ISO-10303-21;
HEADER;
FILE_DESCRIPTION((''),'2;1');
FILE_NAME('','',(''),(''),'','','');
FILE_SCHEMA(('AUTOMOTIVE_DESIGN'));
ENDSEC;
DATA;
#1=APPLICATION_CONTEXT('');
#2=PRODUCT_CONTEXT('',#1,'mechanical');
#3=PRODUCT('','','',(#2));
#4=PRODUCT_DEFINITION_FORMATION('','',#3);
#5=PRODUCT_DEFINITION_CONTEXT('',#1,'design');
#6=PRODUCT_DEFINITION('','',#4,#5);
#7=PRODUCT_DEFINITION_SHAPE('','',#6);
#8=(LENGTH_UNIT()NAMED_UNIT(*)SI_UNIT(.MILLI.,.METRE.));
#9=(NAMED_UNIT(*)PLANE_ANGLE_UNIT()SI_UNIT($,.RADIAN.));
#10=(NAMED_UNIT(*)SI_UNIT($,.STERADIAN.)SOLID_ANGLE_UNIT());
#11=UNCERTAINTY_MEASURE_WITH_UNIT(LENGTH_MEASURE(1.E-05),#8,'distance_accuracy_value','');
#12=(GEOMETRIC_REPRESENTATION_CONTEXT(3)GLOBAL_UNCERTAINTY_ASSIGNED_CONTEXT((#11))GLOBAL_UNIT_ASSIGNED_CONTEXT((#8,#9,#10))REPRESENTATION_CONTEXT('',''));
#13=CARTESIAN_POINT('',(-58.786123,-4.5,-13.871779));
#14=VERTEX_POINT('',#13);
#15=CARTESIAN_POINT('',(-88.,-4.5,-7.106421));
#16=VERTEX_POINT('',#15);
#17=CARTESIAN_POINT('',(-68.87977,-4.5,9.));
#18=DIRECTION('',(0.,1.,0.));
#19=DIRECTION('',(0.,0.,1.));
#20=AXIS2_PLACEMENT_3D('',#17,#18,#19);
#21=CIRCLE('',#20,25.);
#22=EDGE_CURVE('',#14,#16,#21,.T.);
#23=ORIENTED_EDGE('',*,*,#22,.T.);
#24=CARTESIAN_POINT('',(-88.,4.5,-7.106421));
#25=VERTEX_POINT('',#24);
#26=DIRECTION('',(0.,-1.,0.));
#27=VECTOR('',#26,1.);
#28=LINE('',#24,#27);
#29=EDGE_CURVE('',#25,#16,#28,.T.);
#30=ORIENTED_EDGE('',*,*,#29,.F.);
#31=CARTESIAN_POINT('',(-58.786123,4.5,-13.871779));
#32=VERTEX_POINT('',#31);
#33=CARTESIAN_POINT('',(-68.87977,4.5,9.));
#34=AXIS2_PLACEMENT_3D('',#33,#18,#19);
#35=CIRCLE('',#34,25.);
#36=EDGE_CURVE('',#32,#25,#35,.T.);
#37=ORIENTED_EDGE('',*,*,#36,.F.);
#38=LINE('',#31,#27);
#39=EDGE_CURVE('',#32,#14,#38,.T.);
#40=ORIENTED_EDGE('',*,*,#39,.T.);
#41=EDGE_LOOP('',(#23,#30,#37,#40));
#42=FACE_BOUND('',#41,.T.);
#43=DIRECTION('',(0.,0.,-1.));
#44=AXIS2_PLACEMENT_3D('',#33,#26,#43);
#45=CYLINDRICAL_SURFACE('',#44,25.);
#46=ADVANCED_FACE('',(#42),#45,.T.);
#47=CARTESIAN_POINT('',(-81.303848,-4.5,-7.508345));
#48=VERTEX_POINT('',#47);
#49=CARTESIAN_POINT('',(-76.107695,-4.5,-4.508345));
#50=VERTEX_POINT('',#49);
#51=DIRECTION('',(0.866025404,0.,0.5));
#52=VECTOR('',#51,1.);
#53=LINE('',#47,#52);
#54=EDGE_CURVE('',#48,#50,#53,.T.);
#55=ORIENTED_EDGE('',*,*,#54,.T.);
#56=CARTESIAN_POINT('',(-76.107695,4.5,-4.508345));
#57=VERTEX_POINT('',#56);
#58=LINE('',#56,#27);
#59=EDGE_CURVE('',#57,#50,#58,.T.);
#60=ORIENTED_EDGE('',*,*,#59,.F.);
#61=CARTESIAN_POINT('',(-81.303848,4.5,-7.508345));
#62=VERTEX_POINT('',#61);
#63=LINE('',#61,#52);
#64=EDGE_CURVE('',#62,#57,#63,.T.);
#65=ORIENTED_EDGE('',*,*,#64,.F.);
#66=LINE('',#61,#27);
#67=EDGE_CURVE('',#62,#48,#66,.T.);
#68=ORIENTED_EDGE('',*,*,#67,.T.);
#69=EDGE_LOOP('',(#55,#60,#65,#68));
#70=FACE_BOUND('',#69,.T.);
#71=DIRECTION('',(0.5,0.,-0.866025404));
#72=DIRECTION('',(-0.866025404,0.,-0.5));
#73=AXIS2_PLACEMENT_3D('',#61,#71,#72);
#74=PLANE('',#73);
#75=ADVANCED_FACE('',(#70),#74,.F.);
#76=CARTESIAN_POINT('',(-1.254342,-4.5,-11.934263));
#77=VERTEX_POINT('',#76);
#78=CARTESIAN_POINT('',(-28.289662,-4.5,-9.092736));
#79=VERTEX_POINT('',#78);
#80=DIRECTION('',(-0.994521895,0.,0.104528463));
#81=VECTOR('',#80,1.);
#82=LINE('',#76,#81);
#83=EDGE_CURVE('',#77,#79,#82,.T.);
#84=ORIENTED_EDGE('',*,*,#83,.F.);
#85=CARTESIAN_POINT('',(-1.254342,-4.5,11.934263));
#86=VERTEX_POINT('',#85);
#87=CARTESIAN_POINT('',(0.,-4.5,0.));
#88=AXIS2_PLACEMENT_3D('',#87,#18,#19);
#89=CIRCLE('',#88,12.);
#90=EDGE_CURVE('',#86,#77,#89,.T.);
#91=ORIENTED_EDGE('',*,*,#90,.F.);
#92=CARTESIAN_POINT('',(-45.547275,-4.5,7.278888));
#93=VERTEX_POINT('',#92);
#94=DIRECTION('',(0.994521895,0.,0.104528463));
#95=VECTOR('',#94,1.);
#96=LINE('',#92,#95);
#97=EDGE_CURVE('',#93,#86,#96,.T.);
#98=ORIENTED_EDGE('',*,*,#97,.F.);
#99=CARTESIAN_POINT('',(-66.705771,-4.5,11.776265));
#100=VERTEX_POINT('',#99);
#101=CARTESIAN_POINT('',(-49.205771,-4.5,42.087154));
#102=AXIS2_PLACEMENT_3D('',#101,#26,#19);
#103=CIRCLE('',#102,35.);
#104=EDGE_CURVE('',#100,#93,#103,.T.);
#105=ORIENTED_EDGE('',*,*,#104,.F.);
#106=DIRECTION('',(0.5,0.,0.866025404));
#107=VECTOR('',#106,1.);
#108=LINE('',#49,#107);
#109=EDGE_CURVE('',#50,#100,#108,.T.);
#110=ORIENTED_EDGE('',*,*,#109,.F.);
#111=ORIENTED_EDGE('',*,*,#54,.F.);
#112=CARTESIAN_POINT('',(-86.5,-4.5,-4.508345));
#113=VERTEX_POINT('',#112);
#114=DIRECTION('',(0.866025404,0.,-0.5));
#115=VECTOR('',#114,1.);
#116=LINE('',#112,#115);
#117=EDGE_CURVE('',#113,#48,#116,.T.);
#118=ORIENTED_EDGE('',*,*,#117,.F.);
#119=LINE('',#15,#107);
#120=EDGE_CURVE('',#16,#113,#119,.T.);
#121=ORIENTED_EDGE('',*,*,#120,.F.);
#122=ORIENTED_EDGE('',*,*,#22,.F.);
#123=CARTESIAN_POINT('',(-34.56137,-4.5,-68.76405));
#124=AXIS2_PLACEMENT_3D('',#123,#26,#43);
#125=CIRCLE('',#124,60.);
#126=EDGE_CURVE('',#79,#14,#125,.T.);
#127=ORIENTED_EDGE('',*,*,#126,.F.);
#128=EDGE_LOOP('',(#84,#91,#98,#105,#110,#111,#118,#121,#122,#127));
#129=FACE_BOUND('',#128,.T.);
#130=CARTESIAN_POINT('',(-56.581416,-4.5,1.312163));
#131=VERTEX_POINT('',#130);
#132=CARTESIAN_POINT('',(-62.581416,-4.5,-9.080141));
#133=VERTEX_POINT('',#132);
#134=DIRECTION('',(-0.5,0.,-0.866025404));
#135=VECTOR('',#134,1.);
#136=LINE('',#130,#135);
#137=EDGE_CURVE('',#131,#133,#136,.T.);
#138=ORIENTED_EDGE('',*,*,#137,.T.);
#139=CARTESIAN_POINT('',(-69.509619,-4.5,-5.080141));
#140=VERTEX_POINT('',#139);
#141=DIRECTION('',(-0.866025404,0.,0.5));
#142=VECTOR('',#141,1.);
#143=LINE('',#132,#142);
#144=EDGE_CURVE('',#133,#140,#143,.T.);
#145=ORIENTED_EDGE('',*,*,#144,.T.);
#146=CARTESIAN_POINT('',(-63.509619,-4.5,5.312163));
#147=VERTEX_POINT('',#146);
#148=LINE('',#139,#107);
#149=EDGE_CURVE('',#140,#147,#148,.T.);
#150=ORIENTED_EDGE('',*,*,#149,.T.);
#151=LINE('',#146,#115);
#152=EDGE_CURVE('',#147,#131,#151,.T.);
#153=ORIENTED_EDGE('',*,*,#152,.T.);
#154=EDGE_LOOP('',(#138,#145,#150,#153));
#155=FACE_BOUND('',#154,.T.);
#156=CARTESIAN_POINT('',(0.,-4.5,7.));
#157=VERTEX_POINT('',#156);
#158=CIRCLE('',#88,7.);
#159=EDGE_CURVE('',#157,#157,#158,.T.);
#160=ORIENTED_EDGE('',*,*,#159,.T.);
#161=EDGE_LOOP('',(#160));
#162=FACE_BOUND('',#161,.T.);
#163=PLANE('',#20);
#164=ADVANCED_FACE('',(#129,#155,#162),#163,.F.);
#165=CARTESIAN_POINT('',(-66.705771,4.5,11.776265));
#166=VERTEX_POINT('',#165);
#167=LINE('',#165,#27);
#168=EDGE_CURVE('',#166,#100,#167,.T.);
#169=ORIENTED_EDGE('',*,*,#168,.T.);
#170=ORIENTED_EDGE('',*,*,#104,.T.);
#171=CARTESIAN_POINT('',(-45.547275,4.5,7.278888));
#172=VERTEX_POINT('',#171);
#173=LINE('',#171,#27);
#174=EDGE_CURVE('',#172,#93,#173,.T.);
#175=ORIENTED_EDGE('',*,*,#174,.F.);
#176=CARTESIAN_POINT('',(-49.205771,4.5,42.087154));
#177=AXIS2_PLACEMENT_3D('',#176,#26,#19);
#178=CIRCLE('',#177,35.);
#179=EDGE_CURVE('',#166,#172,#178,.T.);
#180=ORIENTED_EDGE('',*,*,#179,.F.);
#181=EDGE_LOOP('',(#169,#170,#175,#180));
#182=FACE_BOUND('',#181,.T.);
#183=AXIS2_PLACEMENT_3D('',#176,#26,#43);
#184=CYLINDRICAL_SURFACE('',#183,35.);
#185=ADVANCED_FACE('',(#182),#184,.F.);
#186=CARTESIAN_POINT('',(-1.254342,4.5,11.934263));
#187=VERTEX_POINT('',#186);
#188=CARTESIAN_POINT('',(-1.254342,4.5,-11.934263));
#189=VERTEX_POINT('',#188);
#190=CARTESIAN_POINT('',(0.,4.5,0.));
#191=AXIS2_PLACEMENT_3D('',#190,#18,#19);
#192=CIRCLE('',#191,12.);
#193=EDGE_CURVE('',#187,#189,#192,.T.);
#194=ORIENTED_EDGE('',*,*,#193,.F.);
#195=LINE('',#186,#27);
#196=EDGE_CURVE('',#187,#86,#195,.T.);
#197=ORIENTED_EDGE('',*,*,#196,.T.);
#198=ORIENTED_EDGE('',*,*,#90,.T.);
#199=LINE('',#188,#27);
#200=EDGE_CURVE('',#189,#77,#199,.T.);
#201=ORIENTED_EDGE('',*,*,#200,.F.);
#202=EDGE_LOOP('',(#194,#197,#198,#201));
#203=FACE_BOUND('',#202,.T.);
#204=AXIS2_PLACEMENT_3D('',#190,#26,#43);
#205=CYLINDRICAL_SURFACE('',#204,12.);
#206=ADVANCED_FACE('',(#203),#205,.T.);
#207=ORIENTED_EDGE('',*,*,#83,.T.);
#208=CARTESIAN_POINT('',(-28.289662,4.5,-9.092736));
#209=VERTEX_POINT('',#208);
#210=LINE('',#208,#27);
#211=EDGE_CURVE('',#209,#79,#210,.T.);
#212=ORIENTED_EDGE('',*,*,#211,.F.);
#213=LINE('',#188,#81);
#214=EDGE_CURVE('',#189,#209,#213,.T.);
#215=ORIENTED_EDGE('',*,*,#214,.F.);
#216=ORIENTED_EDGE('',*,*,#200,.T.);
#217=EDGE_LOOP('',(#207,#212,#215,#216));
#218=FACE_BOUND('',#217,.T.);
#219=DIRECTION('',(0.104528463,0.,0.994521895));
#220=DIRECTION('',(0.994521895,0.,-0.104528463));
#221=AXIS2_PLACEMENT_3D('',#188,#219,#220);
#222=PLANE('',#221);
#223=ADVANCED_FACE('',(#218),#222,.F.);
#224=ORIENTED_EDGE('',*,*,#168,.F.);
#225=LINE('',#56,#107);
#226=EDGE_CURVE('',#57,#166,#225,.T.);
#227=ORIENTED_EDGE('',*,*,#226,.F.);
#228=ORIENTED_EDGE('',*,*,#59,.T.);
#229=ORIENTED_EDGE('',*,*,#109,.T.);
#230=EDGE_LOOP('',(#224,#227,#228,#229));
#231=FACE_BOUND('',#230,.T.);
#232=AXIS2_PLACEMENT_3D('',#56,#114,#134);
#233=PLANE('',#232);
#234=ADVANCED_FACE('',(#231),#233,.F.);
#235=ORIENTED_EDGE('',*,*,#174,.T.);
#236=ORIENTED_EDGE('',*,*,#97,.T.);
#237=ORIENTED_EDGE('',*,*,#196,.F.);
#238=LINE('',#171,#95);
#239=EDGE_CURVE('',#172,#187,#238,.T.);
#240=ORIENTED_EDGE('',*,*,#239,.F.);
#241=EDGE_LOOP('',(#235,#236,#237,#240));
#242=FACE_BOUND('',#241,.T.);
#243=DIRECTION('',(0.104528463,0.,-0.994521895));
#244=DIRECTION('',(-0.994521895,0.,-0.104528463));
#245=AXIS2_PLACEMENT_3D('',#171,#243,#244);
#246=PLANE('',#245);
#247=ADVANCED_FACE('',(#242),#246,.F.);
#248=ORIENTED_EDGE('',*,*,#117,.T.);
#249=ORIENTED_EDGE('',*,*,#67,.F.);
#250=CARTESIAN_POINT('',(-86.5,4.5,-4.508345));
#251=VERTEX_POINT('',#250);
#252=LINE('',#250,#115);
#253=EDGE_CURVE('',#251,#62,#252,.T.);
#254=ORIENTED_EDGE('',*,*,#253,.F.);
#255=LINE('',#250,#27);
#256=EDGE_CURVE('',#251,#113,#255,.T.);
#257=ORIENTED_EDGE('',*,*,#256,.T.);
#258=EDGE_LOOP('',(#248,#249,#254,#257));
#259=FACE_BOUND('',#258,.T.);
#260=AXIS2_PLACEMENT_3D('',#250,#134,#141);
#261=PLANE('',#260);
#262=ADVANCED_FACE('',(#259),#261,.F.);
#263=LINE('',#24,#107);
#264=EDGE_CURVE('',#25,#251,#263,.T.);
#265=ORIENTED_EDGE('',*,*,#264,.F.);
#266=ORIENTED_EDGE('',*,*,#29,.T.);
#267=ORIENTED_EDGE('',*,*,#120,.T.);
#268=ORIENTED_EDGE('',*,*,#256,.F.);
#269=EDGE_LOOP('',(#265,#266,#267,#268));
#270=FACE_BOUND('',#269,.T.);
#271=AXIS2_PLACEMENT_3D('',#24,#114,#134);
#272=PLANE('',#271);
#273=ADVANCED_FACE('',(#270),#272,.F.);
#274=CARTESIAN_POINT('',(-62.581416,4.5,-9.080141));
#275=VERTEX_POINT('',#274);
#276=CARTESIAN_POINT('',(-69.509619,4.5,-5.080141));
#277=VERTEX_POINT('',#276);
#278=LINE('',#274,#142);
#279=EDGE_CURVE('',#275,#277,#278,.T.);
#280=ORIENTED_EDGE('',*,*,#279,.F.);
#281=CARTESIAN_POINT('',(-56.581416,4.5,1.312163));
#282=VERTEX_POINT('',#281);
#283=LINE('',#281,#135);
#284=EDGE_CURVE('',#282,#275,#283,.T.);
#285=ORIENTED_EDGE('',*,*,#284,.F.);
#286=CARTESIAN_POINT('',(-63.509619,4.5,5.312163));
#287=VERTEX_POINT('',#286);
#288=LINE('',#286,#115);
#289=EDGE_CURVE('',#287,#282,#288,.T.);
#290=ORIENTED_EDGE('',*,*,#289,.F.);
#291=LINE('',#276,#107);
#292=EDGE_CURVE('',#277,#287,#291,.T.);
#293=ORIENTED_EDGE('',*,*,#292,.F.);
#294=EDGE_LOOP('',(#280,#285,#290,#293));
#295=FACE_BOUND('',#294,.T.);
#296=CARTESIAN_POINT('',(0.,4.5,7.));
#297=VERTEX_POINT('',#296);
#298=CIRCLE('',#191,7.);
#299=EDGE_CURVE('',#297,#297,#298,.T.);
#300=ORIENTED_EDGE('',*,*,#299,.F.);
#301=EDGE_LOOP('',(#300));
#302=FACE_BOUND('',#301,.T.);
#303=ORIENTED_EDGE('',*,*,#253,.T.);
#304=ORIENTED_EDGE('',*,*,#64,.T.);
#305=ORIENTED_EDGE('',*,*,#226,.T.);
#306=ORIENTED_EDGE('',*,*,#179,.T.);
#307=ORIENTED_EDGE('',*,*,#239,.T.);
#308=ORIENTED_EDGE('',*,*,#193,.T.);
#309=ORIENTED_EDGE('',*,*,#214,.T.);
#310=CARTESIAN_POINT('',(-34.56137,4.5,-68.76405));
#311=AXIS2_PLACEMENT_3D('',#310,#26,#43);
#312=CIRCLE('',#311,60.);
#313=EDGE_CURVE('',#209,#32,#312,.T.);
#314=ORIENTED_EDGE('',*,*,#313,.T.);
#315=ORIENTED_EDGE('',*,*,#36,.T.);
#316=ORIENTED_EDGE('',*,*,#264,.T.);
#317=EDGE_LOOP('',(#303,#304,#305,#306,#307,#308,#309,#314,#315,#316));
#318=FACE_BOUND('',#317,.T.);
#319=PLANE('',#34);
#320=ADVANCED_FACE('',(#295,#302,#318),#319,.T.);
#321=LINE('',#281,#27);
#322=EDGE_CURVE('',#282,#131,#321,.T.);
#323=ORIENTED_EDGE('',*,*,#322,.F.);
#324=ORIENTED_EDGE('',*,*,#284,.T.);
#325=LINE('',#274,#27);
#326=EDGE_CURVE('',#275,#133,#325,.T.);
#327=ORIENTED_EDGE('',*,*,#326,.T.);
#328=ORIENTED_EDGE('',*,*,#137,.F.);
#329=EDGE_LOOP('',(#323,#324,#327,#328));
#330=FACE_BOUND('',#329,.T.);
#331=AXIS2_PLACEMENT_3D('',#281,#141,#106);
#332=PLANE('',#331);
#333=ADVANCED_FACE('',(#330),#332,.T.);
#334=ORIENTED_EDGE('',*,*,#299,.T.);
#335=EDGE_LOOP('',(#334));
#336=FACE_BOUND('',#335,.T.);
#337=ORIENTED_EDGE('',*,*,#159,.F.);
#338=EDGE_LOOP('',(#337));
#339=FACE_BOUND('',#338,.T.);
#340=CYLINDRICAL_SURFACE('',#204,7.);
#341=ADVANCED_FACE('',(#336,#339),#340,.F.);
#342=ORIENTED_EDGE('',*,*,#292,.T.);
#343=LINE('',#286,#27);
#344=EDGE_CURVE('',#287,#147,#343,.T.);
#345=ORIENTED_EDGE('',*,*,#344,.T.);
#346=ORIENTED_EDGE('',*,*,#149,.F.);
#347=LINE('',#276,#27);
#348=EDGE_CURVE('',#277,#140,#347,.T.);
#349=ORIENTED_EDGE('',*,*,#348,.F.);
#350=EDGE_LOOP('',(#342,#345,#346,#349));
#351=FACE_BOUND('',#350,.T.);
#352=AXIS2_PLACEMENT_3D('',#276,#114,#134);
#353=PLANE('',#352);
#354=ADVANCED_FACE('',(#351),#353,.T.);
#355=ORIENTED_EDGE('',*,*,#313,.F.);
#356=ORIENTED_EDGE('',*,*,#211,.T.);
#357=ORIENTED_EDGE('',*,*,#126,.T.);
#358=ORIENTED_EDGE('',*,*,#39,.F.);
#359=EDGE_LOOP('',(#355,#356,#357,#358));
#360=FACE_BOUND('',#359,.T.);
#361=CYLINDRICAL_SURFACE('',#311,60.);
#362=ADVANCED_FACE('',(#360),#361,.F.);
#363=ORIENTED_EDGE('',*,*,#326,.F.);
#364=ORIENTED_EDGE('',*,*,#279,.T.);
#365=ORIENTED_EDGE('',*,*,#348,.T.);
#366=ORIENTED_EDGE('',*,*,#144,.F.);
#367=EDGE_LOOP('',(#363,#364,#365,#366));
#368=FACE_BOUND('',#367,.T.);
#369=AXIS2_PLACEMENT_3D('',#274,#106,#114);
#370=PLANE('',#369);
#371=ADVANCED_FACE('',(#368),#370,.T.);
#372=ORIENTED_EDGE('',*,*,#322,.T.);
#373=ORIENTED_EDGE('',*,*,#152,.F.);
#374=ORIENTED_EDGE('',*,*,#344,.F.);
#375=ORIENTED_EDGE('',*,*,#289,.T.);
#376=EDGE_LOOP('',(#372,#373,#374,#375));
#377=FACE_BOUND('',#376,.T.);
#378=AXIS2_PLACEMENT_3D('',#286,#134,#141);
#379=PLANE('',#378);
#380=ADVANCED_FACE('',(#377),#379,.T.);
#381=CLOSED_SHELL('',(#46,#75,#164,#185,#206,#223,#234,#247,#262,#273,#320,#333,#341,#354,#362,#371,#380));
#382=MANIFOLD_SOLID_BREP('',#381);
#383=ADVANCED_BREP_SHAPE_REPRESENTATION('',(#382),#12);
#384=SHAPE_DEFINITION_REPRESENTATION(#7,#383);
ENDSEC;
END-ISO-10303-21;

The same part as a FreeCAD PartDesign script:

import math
import FreeCAD as App
import Part
import Sketcher
from FreeCAD import Vector
Q = App.Units.Quantity


def add_polygon(sketch, points):
    """Adds a closed chain of lines whose ends are joined by coincident constraints."""
    first, n = sketch.GeometryCount, len(points)
    for a, b in zip(points, points[1:] + points[:1]):
        sketch.addGeometry(Part.LineSegment(App.Vector(*a, 0), App.Vector(*b, 0)), False)
    for i in range(n):
        sketch.addConstraint(Sketcher.Constraint("Coincident", first + i, 2, first + (i + 1) % n, 1))

doc = App.newDocument("Part")
body = doc.addObject("PartDesign::Body", "Body")

# Sketch on XZ plane
sketch1 = doc.addObject("Sketcher::SketchObject", "Sketch")
body.addObject(sketch1)
sketch1.AttachmentSupport = (doc.XZ_Plane, [""])
sketch1.MapMode = "FlatFace"
sketch1.addGeometry(Part.LineSegment(Vector(-1.3, -11.9, 0), Vector(-28.3, -9.1, 0)), False)  # 0
sketch1.addGeometry(Part.ArcOfCircle(Part.Circle(Vector(-34.6, -68.8, 0), Vector(0, 0, 1), 60), math.radians(84), math.radians(114)), False)  # 1
sketch1.addGeometry(Part.ArcOfCircle(Part.Circle(Vector(-68.9, 9, 0), Vector(0, 0, 1), 25), math.radians(-140), math.radians(-66)), False)  # 2
sketch1.addGeometry(Part.LineSegment(Vector(-88, -7.1, 0), Vector(-86.5, -4.5, 0)), False)  # 3
sketch1.addGeometry(Part.LineSegment(Vector(-86.5, -4.5, 0), Vector(-81.3, -7.5, 0)), False)  # 4
sketch1.addGeometry(Part.LineSegment(Vector(-81.3, -7.5, 0), Vector(-76.1, -4.5, 0)), False)  # 5
sketch1.addGeometry(Part.LineSegment(Vector(-76.1, -4.5, 0), Vector(-66.7, 11.8, 0)), False)  # 6
sketch1.addGeometry(Part.ArcOfCircle(Part.Circle(Vector(-49.2, 42.1, 0), Vector(0, 0, 1), 35), math.radians(-120), math.radians(-84)), False)  # 7
sketch1.addGeometry(Part.LineSegment(Vector(-45.5, 7.3, 0), Vector(-1.3, 11.9, 0)), False)  # 8
sketch1.addGeometry(Part.ArcOfCircle(Part.Circle(Vector(0, 0, 0), Vector(0, 0, 1), 12), math.radians(-96), math.radians(96)), False)  # 9
sketch1.addGeometry(Part.Circle(Vector(0, 0, 0), Vector(0, 0, 1), 7), False)  # 10
add_polygon(sketch1, [(-63.5, 5.3), (-69.5, -5.1), (-62.6, -9.1), (-56.6, 1.3)])  # lines 11-14
sketch1.addConstraint([
    Sketcher.Constraint("Tangent", 0, 2, 1, 1),
    Sketcher.Constraint("Tangent", 1, 2, 2, 2),
    Sketcher.Constraint("Coincident", 2, 1, 3, 1),
    Sketcher.Constraint("Coincident", 3, 2, 4, 1),
    Sketcher.Constraint("Coincident", 4, 2, 5, 1),
    Sketcher.Constraint("Coincident", 5, 2, 6, 1),
    Sketcher.Constraint("Coincident", 6, 2, 7, 1),
    Sketcher.Constraint("Tangent", 7, 2, 8, 1),
    Sketcher.Constraint("Tangent", 8, 2, 9, 2),
    Sketcher.Constraint("Tangent", 9, 1, 0, 1),
    Sketcher.Constraint("Coincident", 9, 3, -1, 1),
    Sketcher.Constraint("Coincident", 10, 3, -1, 1),
    Sketcher.Constraint("Perpendicular", 3, 4),
    Sketcher.Constraint("Perpendicular", 4, 6),
    Sketcher.Constraint("Parallel", 6, 11),
    Sketcher.Constraint("Perpendicular", 11, 12),
    Sketcher.Constraint("Perpendicular", 12, 13),
    Sketcher.Constraint("Perpendicular", 13, 14),
    Sketcher.Constraint("Horizontal", 3, 2, 5, 2),
    Sketcher.Constraint("Vertical", 8, 2, 9, 1),
    Sketcher.Constraint("Equal", 4, 5),
    Sketcher.Constraint("Diameter", 10, 14.0),
    Sketcher.Constraint("Radius", 1, 60.0),
    Sketcher.Constraint("Radius", 2, 25.0),
    Sketcher.Constraint("Radius", 7, 35.0),
    Sketcher.Constraint("Radius", 9, 12.0),
    Sketcher.Constraint("Angle", 0, Q("174 deg")),
    Sketcher.Constraint("Angle", 3, Q("60 deg")),
    Sketcher.Constraint("Distance", 3, 3.0),
    Sketcher.Constraint("Distance", 4, 6.0),
    Sketcher.Constraint("Distance", 11, 12.0),
    Sketcher.Constraint("Distance", 12, 8.0),
    Sketcher.Constraint("DistanceY", -1, 1, 2, 3, 9.0),
    Sketcher.Constraint("DistanceX", 2, 1, -1, 1, 88.0),
    Sketcher.Constraint("DistanceX", 2, 3, 7, 3, 19.673998),
    Sketcher.Constraint("DistanceX", 2, 3, 6, 2, 2.173998),
    Sketcher.Constraint("DistanceY", 13, 2, 6, 2, 10.464102),
    Sketcher.Constraint("DistanceX", 11, 2, -1, 1, 69.509619),
])
pad1 = doc.addObject("PartDesign::Pad", "Pad")
body.addObject(pad1)
pad1.Profile = sketch1
pad1.Length = 9
pad1.Midplane = True

doc.recompute()
